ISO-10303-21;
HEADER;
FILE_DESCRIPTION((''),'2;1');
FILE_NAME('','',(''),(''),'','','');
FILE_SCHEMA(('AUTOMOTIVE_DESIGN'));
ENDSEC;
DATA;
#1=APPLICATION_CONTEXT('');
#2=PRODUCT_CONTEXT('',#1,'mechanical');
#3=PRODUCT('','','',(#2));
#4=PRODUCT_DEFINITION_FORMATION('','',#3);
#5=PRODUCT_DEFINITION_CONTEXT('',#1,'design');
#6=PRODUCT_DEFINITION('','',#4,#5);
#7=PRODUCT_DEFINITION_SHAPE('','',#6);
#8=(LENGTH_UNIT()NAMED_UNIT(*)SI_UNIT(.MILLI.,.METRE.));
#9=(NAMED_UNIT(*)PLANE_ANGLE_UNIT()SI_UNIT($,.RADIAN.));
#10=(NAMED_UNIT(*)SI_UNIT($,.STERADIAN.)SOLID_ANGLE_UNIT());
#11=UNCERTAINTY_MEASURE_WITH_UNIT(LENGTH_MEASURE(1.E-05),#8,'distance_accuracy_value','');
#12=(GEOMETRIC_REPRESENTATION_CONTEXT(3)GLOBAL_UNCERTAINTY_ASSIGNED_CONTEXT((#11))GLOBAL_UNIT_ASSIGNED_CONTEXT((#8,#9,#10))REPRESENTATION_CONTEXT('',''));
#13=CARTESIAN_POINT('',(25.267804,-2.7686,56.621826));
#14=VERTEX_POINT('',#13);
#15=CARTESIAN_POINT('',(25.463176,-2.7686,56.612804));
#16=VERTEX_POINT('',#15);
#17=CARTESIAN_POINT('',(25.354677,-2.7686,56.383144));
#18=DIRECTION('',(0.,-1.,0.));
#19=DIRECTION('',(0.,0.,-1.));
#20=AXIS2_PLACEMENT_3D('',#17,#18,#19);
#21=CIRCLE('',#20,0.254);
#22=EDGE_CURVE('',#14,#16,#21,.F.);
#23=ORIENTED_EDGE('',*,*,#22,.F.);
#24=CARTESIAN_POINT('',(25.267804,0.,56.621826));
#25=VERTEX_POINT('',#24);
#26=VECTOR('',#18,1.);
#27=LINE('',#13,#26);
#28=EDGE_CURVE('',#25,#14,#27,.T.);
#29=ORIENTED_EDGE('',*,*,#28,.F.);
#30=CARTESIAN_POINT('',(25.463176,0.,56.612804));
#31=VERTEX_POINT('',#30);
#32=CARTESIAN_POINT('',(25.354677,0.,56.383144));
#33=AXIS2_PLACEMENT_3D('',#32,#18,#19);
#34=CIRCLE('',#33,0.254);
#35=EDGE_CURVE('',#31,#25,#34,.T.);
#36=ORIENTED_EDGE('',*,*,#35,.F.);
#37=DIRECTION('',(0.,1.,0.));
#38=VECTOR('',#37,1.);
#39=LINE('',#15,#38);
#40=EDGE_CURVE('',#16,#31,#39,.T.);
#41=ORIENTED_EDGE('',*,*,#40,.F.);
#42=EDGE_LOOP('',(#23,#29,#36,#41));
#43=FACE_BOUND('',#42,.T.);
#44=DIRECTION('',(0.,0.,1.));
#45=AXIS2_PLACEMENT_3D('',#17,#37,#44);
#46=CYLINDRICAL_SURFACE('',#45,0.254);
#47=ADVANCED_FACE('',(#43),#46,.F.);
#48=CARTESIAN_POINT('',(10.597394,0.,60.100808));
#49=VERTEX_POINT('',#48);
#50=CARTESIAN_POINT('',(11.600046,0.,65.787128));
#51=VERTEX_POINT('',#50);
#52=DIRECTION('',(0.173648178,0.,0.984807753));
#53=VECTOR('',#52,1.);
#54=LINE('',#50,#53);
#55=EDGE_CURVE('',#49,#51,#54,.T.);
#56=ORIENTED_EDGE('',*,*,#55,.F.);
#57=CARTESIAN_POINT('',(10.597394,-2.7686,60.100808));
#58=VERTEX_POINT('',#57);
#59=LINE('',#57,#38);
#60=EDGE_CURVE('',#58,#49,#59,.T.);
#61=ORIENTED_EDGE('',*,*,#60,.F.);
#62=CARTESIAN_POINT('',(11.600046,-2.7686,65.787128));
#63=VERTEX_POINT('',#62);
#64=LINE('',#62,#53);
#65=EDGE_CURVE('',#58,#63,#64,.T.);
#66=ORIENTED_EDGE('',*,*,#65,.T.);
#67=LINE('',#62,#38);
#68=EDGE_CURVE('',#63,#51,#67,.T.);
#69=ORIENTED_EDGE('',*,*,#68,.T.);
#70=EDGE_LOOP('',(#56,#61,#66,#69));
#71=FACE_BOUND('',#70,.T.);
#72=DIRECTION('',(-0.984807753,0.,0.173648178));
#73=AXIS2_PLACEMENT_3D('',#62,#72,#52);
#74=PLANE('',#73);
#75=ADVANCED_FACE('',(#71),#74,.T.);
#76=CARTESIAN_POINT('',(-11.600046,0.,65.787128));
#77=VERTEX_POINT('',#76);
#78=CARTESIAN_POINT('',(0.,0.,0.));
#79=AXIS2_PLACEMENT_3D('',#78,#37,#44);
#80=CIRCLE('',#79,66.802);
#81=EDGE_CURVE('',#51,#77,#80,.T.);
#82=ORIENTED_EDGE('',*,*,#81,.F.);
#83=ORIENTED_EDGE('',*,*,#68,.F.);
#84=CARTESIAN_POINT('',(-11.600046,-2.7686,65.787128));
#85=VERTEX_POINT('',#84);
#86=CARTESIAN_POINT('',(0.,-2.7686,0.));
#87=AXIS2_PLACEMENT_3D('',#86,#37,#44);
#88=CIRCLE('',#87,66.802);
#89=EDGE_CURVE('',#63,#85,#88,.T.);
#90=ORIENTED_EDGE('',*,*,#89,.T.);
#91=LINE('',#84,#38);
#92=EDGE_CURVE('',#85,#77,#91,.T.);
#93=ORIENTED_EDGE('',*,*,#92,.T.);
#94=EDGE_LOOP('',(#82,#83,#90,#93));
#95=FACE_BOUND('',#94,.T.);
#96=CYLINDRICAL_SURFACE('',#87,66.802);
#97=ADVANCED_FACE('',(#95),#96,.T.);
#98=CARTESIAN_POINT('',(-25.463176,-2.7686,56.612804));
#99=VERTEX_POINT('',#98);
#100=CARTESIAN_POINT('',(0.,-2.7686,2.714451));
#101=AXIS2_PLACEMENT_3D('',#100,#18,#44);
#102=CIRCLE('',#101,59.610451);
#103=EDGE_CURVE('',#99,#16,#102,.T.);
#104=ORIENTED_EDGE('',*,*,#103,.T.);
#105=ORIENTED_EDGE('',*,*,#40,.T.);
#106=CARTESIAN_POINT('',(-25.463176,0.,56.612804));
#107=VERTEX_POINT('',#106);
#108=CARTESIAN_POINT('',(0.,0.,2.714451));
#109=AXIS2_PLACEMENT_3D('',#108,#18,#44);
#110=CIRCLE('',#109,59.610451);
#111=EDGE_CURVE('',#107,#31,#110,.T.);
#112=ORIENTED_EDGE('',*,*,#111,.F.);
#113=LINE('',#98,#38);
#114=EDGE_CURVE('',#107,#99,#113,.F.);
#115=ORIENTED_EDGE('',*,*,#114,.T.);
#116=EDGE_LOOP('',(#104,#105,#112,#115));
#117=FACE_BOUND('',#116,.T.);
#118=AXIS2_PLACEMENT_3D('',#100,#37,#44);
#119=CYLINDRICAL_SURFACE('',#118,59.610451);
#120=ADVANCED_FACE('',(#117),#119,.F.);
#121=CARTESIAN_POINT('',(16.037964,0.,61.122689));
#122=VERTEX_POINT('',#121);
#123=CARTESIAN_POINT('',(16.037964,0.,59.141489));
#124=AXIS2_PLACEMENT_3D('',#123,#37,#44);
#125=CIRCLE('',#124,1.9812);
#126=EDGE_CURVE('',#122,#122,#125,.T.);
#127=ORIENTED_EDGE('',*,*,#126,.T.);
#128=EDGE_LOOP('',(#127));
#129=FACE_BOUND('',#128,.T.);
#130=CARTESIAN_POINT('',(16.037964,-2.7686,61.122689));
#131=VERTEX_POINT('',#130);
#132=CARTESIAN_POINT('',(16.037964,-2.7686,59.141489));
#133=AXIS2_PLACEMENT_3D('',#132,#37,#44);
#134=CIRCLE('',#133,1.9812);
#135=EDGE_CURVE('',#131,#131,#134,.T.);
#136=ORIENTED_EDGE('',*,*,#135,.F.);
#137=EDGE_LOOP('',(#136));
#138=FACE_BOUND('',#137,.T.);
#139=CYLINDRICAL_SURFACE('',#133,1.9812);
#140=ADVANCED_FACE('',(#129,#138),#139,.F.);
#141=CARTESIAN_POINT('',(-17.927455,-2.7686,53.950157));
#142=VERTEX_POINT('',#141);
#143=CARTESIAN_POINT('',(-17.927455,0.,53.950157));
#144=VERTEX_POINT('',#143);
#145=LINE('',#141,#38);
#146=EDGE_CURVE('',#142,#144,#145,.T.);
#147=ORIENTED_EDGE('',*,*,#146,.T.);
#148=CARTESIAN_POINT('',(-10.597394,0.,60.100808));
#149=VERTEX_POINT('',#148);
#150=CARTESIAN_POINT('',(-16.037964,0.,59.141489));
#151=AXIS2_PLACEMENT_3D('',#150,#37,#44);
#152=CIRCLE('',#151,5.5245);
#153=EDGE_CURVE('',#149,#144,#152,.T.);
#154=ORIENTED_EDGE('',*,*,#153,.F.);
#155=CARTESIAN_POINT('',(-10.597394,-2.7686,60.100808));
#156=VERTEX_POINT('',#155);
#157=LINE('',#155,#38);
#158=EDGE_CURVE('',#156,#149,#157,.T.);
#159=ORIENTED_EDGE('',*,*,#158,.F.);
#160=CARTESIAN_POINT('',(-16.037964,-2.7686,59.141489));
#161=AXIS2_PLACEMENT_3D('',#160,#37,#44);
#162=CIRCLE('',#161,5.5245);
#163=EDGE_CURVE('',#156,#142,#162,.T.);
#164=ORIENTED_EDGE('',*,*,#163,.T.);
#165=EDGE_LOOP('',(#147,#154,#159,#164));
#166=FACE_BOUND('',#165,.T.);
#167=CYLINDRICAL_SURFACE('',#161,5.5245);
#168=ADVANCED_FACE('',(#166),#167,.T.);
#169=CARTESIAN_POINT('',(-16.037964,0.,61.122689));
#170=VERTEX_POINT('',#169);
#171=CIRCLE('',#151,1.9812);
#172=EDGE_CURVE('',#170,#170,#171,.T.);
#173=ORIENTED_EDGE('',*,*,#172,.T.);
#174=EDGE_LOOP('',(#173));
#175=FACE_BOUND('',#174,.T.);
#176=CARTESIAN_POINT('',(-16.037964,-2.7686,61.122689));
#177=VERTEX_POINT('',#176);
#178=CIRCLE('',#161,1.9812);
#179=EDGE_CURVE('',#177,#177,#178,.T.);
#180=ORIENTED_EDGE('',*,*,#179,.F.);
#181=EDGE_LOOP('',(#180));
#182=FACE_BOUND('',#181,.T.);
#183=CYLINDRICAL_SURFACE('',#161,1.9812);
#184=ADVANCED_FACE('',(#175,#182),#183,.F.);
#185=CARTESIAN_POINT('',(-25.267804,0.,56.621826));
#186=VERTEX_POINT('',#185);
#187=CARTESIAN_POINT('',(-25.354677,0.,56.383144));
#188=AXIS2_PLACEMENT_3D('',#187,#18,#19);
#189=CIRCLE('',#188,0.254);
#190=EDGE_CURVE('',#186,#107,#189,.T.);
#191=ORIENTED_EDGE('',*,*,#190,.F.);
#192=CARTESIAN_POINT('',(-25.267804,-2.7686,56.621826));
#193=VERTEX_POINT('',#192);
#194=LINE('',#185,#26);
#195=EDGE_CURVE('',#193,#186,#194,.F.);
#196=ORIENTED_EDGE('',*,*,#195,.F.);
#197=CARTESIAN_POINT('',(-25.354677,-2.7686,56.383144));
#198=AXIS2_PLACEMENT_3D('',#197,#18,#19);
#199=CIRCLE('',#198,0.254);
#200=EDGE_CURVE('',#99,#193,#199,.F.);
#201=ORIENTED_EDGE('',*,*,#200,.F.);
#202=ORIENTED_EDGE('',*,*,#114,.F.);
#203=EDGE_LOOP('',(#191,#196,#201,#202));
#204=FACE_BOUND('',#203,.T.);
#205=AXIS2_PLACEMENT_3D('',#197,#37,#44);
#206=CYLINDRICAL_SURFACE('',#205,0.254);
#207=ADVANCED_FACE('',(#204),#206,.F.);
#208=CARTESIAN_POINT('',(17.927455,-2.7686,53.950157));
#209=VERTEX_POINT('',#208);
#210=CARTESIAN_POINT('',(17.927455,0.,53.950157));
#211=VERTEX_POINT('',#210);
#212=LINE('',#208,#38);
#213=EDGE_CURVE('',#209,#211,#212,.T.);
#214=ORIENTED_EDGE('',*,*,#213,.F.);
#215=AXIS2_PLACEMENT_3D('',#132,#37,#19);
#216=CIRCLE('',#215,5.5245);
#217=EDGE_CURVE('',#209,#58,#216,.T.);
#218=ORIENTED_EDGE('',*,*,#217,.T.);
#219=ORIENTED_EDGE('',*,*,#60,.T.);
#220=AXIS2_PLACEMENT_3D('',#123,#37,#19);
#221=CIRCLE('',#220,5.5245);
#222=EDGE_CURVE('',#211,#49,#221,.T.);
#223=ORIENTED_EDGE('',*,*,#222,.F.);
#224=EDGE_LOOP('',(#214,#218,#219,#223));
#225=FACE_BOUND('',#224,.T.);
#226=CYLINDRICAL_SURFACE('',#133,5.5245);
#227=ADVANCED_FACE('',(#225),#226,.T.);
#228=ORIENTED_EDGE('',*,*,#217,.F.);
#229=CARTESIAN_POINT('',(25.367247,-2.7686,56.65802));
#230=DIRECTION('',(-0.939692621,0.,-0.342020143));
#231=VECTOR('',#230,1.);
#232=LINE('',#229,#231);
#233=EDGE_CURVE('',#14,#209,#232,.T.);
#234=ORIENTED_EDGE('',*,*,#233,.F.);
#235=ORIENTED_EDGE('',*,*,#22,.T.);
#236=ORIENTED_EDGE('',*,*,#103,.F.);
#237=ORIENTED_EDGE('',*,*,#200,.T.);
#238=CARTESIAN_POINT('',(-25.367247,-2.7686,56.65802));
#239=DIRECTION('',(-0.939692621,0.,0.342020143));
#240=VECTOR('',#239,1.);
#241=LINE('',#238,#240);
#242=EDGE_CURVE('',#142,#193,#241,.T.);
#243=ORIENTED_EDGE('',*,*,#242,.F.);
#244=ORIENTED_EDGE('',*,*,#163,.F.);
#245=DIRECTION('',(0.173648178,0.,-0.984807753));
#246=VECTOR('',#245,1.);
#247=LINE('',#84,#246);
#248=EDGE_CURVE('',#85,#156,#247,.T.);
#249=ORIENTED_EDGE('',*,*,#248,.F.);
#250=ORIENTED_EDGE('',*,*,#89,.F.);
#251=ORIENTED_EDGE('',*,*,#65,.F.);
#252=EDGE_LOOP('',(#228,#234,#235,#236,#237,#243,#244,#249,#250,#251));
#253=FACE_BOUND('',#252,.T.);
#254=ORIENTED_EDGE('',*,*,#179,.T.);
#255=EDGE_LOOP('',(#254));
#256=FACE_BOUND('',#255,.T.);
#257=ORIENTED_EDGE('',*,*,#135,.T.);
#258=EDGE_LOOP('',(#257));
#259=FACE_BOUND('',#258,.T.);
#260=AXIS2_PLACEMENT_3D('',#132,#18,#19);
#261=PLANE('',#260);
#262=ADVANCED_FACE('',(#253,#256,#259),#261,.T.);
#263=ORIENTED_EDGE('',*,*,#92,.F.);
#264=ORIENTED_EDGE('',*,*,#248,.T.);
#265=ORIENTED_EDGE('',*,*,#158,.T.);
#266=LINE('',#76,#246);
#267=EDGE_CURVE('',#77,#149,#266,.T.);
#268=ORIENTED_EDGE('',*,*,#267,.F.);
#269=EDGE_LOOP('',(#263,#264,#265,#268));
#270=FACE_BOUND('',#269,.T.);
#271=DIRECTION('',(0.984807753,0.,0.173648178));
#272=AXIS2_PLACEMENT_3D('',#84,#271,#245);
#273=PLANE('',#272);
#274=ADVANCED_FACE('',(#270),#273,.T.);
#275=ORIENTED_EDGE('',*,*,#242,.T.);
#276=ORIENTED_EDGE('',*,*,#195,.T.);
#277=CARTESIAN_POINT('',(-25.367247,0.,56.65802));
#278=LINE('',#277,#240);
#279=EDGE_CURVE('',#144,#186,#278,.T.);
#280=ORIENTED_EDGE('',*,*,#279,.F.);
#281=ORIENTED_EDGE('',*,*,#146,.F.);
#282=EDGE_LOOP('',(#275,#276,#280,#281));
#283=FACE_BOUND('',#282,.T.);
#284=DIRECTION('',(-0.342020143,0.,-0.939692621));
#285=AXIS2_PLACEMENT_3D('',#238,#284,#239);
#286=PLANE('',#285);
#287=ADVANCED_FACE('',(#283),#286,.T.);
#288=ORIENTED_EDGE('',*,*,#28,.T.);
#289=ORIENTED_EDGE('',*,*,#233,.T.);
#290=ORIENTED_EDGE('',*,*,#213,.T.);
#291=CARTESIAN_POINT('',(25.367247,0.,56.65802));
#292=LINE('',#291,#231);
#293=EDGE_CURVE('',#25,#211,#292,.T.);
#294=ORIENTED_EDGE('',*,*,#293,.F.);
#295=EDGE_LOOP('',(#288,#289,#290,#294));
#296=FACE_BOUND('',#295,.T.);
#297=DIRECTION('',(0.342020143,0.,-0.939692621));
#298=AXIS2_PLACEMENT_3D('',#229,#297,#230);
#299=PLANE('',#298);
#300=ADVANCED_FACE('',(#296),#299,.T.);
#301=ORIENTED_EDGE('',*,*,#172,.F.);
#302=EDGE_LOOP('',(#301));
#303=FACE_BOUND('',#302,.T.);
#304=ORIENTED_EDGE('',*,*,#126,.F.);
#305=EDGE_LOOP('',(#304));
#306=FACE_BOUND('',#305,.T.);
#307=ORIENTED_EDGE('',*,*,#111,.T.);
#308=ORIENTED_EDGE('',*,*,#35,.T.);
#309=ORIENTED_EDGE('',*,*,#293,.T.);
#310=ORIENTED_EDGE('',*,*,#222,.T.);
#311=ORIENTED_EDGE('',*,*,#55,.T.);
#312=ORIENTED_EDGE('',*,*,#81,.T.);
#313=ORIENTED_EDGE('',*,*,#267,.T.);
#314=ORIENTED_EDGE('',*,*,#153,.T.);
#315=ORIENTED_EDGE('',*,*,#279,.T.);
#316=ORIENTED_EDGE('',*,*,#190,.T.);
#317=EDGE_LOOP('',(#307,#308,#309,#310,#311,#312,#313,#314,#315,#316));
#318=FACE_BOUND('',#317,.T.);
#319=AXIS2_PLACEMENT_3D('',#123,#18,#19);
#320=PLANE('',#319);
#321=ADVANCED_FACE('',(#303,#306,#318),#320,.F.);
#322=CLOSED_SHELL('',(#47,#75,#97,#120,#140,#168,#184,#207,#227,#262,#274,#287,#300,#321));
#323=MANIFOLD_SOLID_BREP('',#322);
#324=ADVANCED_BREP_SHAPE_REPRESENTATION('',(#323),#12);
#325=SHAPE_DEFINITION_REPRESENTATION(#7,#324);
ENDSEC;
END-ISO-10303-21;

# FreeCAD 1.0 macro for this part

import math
import FreeCAD as App
import Part
import Sketcher
from FreeCAD import Vector
Q = App.Units.Quantity


def edges_at(feature, points):
    """Names of the edges that pass closest to the given points."""
    edges = feature.Shape.Edges
    near = lambda p: min(range(len(edges)), key=lambda i: edges[i].distToShape(Part.Vertex(*p))[0])
    return sorted({f"Edge{near(p) + 1}" for p in points})

doc = App.newDocument("Part")
body = doc.addObject("PartDesign::Body", "Body")

sketch1 = body.newObject("Sketcher::SketchObject", "Sketch")
sketch1.AttachmentSupport = (doc.getObject("XZ_Plane"), [""])
sketch1.MapMode = "FlatFace"
sketch1.addGeometry([
    Part.LineSegment(Vector(10.597394, 60.100808, 0), Vector(11.600046, 65.787128, 0)),
    Part.ArcOfCircle(Part.Circle(Vector(0, 0, 0), Vector(0, 0, 1), 66.802), math.radians(100), math.radians(440)),
    Part.LineSegment(Vector(-11.600046, 65.787128, 0), Vector(-10.597394, 60.100808, 0)),
    Part.ArcOfCircle(Part.Circle(Vector(-16.037964, 59.141489, 0), Vector(0, 0, 1), 5.5245), math.radians(-110), math.radians(10)),
    Part.LineSegment(Vector(-17.927455, 53.950157, 0), Vector(-25.367247, 56.65802, 0)),
    Part.ArcOfCircle(Part.Circle(Vector(0, 2.714451, 0), Vector(0, 0, 1), 59.610451), math.radians(115.185502), math.radians(424.814498)),
    Part.LineSegment(Vector(25.367247, 56.65802, 0), Vector(17.927455, 53.950157, 0)),
    Part.ArcOfCircle(Part.Circle(Vector(16.037964, 59.141489, 0), Vector(0, 0, 1), 5.5245), math.radians(170), math.radians(290)),
    Part.Circle(Vector(16.037964, 59.141489, 0), Vector(0, 0, 1), 1.9812),
    Part.Circle(Vector(-16.037964, 59.141489, 0), Vector(0, 0, 1), 1.9812),
], False)
sketch1.addConstraint([
    Sketcher.Constraint("Coincident", 0, 2, 1, 2),
    Sketcher.Constraint("Coincident", 1, 1, 2, 1),
    Sketcher.Constraint("Tangent", 2, 2, 3, 2),
    Sketcher.Constraint("Tangent", 3, 1, 4, 1),
    Sketcher.Constraint("Coincident", 4, 2, 5, 1),
    Sketcher.Constraint("Coincident", 5, 2, 6, 1),
    Sketcher.Constraint("Tangent", 6, 2, 7, 2),
    Sketcher.Constraint("Tangent", 7, 1, 0, 1),
    Sketcher.Constraint("Coincident", 1, 3, -1, 1),
    Sketcher.Constraint("Coincident", 8, 3, 7, 3),
    Sketcher.Constraint("Coincident", 9, 3, 3, 3),
    Sketcher.Constraint("Equal", 3, 7),
    Sketcher.Constraint("Equal", 8, 9),
    Sketcher.Constraint("Symmetric", 3, 3, 7, 3, -2),
    Sketcher.Constraint("Symmetric", 4, 2, 5, 2, -2),
    Sketcher.Constraint("Horizontal", 0, 2, 1, 1),
    Sketcher.Constraint("Radius", 1, Q("2.63 in")),
    Sketcher.Constraint("Diameter", 8, Q("0.156 in")),
    Sketcher.Constraint("Angle", 0, Q("80 deg")),
    Sketcher.Constraint("Angle", 4, Q("160 deg")),
    Sketcher.Constraint("Radius", 3, Q("0.2175 in")),
    Sketcher.Constraint("Radius", 5, 59.610451),
    Sketcher.Constraint("DistanceX", 3, 1, 0, 2, Q("1.1625 in")),
    Sketcher.Constraint("DistanceX", 4, 2, 1, 1, 13.767201),
    Sketcher.Constraint("Distance", 0, 5.77404),
])
pad1 = body.newObject("PartDesign::Pad", "Pad")
pad1.Profile = sketch1
pad1.Length = Q("0.109 in")
doc.recompute()

fillet = body.newObject("PartDesign::Fillet", "Fillet")
fillet.Base = (pad1, edges_at(pad1, [(25.367, -1.384, 56.658), (-25.367, -1.384, 56.658)]))
fillet.Radius = Q("0.01 in")

doc.recompute()
